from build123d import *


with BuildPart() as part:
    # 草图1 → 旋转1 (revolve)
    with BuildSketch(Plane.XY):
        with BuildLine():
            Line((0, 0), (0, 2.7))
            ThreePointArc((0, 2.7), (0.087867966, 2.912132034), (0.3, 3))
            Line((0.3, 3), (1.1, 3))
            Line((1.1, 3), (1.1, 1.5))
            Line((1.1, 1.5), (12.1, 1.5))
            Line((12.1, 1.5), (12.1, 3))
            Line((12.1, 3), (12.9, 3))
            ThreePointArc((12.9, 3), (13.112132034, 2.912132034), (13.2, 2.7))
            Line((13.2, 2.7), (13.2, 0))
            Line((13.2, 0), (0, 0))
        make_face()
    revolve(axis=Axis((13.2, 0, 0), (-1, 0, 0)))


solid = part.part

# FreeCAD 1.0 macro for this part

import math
import FreeCAD as App
import Part
import Sketcher
from FreeCAD import Vector

doc = App.newDocument("Part")
params = doc.addObject("Spreadsheet::Sheet", "Params")
for row, (alias, value) in enumerate([
    ("sketch1_radius", "0.3 mm"),
    ("sketch1_width", "11 mm"),
    ("sketch1_width2", "13.2 mm"),
    ("sketch1_height", "2.7 mm"),
    ("sketch1_height2", "1.5 mm"),
    ("revolution_angle", "360 deg"),
], start=1):
    params.set(f"A{row}", alias)
    params.set(f"B{row}", "=" + value)
    params.setAlias(f"B{row}", alias)

body = doc.addObject("PartDesign::Body", "Body")

sketch1 = body.newObject("Sketcher::SketchObject", "Sketch")
sketch1.AttachmentSupport = (doc.getObject("XY_Plane"), [""])
sketch1.MapMode = "FlatFace"
sketch1.addGeometry(Part.LineSegment(Vector(0, 2.7, 0), Vector(0, 0, 0)), False)
sketch1.addGeometry(Part.LineSegment(Vector(0, 0, 0), Vector(13.2, 0, 0)), False)
sketch1.addGeometry(Part.LineSegment(Vector(13.2, 0, 0), Vector(13.2, 2.7, 0)), False)
sketch1.addGeometry(Part.ArcOfCircle(Part.Circle(Vector(12.9, 2.7, 0), Vector(0, 0, 1), 0.3), math.radians(0), math.radians(90)), False)
sketch1.addGeometry(Part.LineSegment(Vector(12.9, 3, 0), Vector(12.1, 3, 0)), False)
sketch1.addGeometry(Part.LineSegment(Vector(12.1, 3, 0), Vector(12.1, 1.5, 0)), False)
sketch1.addGeometry(Part.LineSegment(Vector(12.1, 1.5, 0), Vector(1.1, 1.5, 0)), False)
sketch1.addGeometry(Part.LineSegment(Vector(1.1, 1.5, 0), Vector(1.1, 3, 0)), False)
sketch1.addGeometry(Part.LineSegment(Vector(1.1, 3, 0), Vector(0.3, 3, 0)), False)
sketch1.addGeometry(Part.ArcOfCircle(Part.Circle(Vector(0.3, 2.7, 0), Vector(0, 0, 1), 0.3), math.radians(90), math.radians(180)), False)
sketch1.addConstraint(Sketcher.Constraint("Coincident", 0, 2, 1, 1))
sketch1.addConstraint(Sketcher.Constraint("Coincident", 1, 2, 2, 1))
sketch1.addConstraint(Sketcher.Constraint("Tangent", 2, 2, 3, 1))
sketch1.addConstraint(Sketcher.Constraint("Tangent", 3, 2, 4, 1))
sketch1.addConstraint(Sketcher.Constraint("Coincident", 4, 2, 5, 1))
sketch1.addConstraint(Sketcher.Constraint("Coincident", 5, 2, 6, 1))
sketch1.addConstraint(Sketcher.Constraint("Coincident", 6, 2, 7, 1))
sketch1.addConstraint(Sketcher.Constraint("Coincident", 7, 2, 8, 1))
sketch1.addConstraint(Sketcher.Constraint("Tangent", 8, 2, 9, 1))
sketch1.addConstraint(Sketcher.Constraint("Tangent", 9, 2, 0, 1))
sketch1.addConstraint(Sketcher.Constraint("Vertical", 0))
sketch1.addConstraint(Sketcher.Constraint("Horizontal", 1))
sketch1.addConstraint(Sketcher.Constraint("Vertical", 2))
sketch1.addConstraint(Sketcher.Constraint("Horizontal", 4))
sketch1.addConstraint(Sketcher.Constraint("Vertical", 5))
sketch1.addConstraint(Sketcher.Constraint("Horizontal", 6))
sketch1.addConstraint(Sketcher.Constraint("Vertical", 7))
sketch1.addConstraint(Sketcher.Constraint("Horizontal", 8))
sketch1.addConstraint(Sketcher.Constraint("Coincident", 0, 2, -1, 1))
sketch1.addConstraint(Sketcher.Constraint("Equal", 3, 9))
sketch1.addConstraint(Sketcher.Constraint("Horizontal", 3, 3, 9, 3))
sketch1.addConstraint(Sketcher.Constraint("Equal", 4, 8))
sketch1.addConstraint(Sketcher.Constraint("Radius", 3, 0.3))
sketch1.addConstraint(Sketcher.Constraint("DistanceX", 6, 2, 6, 1, 11.0))
sketch1.addConstraint(Sketcher.Constraint("DistanceX", 1, 1, 1, 2, 13.2))
sketch1.addConstraint(Sketcher.Constraint("DistanceY", 0, 2, 0, 1, 2.7))
sketch1.addConstraint(Sketcher.Constraint("DistanceY", 5, 2, 5, 1, 1.5))
sketch1.setExpression("Constraints[22]", "Params.sketch1_radius")
sketch1.setExpression("Constraints[23]", "Params.sketch1_width")
sketch1.setExpression("Constraints[24]", "Params.sketch1_width2")
sketch1.setExpression("Constraints[25]", "Params.sketch1_height")
sketch1.setExpression("Constraints[26]", "Params.sketch1_height2")
revolution = body.newObject("PartDesign::Revolution", "Revolution")
revolution.Profile = sketch1
revolution.ReferenceAxis = (sketch1, ["H_Axis"])
revolution.setExpression("Angle", "Params.revolution_angle")

doc.recompute()
